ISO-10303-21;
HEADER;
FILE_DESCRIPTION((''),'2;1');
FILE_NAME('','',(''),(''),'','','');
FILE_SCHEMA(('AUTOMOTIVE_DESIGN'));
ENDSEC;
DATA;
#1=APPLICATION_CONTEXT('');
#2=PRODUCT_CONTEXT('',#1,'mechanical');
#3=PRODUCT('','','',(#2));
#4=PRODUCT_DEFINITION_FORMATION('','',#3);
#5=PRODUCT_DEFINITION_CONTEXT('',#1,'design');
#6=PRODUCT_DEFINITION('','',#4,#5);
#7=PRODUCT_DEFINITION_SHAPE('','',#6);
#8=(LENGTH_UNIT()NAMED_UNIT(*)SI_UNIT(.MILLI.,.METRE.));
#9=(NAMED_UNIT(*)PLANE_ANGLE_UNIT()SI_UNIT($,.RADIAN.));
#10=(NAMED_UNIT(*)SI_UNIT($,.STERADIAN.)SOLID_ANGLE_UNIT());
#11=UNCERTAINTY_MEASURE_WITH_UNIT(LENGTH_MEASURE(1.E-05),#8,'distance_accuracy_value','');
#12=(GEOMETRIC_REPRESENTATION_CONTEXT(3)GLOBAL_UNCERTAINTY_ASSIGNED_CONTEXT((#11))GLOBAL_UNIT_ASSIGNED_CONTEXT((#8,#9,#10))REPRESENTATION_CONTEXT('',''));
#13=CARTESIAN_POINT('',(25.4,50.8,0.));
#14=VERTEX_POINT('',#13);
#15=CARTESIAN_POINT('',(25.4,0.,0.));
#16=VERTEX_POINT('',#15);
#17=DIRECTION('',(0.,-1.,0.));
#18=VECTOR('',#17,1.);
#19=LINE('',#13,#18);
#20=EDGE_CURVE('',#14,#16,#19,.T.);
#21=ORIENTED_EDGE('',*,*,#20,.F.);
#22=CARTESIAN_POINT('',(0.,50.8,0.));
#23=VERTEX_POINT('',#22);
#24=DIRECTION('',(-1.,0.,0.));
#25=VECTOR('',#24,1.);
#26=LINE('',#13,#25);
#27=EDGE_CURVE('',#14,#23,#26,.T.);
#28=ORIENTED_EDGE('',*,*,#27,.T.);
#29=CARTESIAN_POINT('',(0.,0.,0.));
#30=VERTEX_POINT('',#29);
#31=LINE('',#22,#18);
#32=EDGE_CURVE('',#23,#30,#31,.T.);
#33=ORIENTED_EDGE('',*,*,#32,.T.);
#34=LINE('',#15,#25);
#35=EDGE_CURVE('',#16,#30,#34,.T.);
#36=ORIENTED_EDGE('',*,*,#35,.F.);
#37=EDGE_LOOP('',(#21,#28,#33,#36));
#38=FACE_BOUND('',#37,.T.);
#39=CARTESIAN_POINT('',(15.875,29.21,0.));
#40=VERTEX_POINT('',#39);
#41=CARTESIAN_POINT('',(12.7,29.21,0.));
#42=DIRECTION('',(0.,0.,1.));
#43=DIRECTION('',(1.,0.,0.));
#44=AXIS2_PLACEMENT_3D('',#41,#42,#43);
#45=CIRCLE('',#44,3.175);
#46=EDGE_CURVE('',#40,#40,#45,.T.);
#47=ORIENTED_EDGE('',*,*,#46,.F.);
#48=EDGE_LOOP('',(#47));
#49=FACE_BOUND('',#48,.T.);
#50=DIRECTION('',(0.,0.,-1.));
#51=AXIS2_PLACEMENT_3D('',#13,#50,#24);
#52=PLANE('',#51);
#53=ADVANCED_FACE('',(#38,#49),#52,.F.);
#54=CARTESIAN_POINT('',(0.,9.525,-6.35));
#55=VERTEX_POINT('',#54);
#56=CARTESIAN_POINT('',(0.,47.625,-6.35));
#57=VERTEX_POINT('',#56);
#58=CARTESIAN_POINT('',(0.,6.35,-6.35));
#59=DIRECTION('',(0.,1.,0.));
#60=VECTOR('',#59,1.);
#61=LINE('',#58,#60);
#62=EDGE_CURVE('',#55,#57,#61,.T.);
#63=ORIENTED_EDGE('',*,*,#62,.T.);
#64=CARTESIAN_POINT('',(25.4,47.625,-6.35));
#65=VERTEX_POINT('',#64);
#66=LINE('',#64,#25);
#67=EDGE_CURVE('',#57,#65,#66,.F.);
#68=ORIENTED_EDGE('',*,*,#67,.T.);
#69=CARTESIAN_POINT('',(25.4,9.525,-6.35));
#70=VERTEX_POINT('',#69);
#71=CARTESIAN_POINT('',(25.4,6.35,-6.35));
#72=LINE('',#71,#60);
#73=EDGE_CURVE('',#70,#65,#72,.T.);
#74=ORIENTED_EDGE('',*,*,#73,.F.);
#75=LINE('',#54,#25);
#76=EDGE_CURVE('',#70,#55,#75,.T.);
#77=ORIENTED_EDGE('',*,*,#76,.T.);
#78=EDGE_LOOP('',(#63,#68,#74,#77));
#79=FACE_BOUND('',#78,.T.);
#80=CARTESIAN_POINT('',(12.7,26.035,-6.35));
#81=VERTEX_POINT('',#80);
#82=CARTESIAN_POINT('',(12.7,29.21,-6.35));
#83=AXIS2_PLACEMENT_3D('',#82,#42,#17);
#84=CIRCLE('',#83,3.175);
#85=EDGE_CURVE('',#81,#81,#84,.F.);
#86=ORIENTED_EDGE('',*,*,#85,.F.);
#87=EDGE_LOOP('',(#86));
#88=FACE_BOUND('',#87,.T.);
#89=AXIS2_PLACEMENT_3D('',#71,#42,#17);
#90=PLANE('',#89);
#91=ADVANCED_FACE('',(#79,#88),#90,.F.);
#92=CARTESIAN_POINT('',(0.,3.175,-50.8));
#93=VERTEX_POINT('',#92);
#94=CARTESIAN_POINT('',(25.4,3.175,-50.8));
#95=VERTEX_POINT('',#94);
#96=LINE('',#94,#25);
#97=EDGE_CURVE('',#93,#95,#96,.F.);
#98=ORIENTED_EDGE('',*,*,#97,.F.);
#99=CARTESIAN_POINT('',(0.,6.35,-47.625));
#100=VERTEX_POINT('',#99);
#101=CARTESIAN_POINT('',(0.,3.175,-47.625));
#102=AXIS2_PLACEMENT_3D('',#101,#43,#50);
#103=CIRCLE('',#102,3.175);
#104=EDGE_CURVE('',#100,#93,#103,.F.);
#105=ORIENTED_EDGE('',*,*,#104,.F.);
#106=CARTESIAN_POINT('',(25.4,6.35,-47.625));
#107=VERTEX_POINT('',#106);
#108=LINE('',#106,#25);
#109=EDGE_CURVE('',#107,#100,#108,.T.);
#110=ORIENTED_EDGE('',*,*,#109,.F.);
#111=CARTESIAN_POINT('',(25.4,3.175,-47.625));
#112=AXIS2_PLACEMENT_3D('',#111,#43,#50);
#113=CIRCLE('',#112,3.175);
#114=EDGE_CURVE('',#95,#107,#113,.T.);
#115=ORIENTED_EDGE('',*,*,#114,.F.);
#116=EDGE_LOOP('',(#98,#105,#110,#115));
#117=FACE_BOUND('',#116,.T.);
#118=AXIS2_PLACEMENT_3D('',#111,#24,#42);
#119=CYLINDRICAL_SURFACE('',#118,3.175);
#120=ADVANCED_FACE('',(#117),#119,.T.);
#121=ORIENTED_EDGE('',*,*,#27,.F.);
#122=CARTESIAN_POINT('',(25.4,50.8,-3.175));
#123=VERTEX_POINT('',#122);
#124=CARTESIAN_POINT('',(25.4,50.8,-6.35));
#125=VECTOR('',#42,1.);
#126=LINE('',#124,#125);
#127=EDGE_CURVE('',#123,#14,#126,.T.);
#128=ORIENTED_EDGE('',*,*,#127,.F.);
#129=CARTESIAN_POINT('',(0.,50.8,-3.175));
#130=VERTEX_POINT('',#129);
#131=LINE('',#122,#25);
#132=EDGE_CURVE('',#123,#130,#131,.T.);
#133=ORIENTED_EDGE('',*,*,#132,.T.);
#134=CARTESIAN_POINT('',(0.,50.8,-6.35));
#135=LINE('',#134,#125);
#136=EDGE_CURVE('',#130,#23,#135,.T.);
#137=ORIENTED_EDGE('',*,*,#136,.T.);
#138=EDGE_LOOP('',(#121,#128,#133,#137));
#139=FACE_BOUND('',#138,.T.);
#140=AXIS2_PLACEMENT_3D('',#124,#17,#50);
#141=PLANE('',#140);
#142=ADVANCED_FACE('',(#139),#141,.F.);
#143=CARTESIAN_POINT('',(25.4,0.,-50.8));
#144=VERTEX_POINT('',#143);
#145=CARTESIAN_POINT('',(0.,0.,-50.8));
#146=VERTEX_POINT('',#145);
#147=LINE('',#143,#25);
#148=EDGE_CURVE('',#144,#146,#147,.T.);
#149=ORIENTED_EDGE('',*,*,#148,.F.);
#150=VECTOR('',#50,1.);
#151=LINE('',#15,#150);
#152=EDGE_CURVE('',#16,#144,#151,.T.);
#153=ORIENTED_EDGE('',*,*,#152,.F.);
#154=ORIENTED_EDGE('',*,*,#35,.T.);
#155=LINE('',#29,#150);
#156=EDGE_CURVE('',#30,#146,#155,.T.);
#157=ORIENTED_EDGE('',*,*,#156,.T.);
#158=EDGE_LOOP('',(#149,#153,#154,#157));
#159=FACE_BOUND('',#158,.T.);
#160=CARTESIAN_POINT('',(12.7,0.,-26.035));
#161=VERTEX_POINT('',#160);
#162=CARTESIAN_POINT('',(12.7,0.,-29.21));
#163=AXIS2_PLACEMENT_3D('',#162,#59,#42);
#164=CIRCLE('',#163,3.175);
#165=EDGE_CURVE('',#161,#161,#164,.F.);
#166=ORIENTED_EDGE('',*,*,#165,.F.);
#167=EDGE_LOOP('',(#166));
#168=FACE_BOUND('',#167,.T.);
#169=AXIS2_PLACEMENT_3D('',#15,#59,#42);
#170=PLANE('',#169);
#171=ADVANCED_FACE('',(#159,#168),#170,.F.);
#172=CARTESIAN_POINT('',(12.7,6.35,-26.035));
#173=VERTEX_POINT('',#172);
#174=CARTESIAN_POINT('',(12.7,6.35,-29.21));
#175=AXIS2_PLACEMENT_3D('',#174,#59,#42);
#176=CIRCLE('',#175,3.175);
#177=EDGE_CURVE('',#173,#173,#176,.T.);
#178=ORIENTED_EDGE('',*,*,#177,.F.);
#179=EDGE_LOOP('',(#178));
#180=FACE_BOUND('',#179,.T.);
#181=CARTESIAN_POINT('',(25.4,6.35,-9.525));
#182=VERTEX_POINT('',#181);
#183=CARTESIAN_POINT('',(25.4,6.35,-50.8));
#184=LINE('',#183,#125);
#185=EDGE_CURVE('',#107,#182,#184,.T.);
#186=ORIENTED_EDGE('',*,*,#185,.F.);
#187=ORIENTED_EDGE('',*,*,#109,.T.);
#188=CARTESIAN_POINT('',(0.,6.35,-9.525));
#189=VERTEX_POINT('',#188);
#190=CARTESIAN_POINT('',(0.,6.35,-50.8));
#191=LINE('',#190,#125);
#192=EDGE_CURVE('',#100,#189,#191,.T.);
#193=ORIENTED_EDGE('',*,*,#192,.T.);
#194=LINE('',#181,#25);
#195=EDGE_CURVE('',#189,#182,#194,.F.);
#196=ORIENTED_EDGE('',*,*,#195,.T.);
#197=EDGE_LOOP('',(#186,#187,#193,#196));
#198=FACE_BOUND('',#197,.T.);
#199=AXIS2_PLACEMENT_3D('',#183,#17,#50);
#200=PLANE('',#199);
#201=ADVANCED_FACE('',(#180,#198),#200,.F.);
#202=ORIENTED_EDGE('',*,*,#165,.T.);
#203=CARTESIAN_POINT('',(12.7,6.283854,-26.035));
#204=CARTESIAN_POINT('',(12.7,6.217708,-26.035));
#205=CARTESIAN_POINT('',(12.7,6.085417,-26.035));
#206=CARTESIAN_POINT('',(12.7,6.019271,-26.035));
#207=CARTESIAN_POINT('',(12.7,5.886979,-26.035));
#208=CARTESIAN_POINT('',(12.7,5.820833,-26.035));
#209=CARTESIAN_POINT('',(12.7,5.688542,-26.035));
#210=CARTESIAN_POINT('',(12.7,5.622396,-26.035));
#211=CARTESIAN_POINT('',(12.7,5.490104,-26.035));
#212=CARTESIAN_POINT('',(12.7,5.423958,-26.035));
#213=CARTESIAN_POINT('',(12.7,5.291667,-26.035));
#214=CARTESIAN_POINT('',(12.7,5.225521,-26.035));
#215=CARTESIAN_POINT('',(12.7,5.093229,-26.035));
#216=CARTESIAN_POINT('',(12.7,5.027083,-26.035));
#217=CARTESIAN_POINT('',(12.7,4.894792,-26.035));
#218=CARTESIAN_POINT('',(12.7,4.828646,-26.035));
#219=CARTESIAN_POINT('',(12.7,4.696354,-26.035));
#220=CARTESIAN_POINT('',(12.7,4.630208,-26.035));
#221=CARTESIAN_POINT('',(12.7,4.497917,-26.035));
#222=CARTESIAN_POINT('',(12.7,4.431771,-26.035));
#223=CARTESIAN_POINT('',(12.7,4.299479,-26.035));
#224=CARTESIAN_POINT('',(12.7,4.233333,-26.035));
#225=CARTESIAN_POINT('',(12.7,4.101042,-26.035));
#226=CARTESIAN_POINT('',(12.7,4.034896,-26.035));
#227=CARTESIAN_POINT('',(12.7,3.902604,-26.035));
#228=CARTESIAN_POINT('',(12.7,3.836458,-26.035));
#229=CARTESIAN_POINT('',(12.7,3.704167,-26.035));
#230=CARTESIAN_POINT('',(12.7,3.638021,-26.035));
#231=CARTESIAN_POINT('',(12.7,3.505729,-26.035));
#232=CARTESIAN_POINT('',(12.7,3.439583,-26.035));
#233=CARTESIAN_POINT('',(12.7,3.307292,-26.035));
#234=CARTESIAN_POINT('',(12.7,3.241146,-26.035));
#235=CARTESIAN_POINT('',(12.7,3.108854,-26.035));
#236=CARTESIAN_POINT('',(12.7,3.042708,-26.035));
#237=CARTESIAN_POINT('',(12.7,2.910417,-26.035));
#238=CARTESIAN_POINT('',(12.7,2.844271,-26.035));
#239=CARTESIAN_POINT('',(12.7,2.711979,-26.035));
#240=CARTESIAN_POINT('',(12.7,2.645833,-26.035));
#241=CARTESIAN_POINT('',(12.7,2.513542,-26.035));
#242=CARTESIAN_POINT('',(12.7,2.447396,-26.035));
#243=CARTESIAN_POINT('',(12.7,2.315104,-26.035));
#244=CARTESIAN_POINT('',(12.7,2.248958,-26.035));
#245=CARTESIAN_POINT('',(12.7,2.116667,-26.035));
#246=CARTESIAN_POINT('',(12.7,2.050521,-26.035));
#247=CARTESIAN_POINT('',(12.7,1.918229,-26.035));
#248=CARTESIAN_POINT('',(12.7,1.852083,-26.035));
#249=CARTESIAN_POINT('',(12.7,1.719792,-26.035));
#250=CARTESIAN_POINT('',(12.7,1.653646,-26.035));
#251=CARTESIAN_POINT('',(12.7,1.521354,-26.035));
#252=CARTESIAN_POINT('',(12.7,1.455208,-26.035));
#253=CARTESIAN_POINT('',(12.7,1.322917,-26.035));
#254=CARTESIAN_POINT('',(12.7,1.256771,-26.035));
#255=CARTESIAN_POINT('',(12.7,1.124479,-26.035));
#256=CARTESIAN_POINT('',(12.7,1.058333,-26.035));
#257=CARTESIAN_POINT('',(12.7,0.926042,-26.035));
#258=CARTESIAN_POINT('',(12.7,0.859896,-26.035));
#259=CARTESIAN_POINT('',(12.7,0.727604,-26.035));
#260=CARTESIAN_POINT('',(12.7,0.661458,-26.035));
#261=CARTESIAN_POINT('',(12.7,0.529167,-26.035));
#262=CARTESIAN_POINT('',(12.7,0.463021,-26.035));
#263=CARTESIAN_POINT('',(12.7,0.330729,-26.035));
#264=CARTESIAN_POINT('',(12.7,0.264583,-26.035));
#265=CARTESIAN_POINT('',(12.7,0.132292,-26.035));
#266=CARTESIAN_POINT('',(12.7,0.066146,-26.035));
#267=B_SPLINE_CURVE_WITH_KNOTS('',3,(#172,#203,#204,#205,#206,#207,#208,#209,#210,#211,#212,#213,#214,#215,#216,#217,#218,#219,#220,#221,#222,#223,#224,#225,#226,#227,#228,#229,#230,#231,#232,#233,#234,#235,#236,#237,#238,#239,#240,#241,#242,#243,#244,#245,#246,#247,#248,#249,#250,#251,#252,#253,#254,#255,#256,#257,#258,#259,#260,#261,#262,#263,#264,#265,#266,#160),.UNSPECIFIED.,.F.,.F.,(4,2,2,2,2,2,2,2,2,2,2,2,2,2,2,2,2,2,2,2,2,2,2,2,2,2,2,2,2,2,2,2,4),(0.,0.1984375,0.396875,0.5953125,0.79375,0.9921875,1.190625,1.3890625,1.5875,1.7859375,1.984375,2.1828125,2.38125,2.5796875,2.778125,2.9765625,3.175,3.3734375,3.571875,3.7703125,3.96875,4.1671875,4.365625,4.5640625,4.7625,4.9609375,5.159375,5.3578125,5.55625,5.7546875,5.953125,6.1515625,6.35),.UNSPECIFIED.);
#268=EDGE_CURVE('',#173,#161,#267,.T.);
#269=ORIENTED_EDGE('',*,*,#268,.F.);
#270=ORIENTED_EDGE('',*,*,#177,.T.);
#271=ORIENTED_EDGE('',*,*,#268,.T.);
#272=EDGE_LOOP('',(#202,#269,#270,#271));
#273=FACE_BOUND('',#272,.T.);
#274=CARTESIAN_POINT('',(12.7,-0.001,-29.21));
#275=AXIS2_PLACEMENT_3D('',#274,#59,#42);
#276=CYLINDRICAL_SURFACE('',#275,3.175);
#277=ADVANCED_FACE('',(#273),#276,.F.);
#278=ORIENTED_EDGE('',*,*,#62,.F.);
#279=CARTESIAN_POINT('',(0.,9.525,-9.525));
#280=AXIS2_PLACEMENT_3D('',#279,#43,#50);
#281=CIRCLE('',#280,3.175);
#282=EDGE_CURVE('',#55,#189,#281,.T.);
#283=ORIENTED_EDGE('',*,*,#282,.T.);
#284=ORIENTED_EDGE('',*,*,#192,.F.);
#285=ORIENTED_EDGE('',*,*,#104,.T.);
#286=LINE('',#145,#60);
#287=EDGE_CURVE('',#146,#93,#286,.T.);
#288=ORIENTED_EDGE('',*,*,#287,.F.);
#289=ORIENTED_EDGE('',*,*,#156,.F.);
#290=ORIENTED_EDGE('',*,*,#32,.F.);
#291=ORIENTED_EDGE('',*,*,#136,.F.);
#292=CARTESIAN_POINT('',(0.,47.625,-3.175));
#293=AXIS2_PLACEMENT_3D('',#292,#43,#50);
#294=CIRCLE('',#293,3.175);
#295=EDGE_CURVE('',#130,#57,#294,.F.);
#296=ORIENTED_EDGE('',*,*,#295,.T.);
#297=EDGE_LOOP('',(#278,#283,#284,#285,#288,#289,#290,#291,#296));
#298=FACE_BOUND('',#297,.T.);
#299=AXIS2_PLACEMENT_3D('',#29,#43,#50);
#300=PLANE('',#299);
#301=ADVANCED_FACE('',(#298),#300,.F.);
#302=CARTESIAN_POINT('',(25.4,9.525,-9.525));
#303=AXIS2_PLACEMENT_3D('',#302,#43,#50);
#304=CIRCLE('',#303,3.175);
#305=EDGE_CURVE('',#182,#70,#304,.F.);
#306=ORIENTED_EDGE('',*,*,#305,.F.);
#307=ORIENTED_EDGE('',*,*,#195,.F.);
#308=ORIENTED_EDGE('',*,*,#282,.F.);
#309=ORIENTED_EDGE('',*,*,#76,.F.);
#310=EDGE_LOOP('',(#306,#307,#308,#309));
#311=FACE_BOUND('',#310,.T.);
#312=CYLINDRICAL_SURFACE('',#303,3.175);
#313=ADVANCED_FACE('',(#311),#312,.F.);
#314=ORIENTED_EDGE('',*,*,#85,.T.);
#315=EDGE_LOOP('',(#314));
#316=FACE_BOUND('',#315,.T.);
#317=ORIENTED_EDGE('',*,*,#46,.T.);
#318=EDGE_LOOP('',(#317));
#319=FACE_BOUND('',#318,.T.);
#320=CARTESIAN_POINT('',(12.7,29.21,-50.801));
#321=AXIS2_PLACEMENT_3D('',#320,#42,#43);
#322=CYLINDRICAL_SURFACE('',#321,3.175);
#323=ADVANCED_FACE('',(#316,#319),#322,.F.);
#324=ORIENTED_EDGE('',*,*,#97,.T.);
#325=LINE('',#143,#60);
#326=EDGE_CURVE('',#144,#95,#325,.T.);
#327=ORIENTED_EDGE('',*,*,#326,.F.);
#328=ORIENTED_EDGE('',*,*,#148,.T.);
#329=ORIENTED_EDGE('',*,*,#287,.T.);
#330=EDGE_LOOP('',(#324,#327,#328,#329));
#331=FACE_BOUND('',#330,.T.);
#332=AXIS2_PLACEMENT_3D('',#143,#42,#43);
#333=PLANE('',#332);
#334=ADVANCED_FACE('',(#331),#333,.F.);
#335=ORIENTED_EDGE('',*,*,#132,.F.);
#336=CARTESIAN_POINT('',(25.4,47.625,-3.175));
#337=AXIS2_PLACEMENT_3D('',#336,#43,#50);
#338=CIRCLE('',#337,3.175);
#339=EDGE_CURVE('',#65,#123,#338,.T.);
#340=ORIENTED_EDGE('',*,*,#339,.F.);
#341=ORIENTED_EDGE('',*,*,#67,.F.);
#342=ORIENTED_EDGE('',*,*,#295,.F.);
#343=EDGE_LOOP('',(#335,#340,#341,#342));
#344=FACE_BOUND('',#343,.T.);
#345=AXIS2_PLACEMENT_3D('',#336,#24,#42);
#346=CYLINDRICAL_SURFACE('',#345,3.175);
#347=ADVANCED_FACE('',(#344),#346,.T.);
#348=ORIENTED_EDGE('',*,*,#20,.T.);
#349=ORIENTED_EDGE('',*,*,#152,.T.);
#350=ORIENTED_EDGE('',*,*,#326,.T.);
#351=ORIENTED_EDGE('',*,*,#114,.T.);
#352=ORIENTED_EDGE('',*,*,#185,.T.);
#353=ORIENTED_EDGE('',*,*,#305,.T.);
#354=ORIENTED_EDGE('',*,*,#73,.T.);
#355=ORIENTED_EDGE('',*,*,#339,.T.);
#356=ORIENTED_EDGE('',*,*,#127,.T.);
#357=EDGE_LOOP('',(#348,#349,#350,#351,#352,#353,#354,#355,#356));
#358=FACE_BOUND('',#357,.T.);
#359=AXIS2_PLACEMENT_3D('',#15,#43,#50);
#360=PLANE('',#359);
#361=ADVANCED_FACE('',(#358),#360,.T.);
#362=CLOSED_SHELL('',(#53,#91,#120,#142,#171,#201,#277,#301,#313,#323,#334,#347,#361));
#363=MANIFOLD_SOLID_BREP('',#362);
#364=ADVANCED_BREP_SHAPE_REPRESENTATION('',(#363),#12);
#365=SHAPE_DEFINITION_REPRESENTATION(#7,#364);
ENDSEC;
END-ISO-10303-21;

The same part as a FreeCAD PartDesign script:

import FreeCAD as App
import Part
import Sketcher

V = App.Vector
Q = App.Units.Quantity


def edges_at(feature, points):
    """Names of the edges that pass closest to the given points."""
    edges = feature.Shape.Edges
    near = lambda p: min(range(len(edges)), key=lambda i: edges[i].distToShape(Part.Vertex(*p))[0])
    return sorted({f"Edge{near(p) + 1}" for p in points})


def add_polygon(sketch, points):
    """Adds a closed chain of lines whose ends are joined by coincident constraints."""
    first, n = sketch.GeometryCount, len(points)
    for a, b in zip(points, points[1:] + points[:1]):
        sketch.addGeometry(Part.LineSegment(App.Vector(*a, 0), App.Vector(*b, 0)), False)
    for i in range(n):
        sketch.addConstraint(Sketcher.Constraint("Coincident", first + i, 2, first + (i + 1) % n, 1))

doc = App.newDocument("Part")
body = doc.addObject("PartDesign::Body", "Body")

sketch1 = doc.addObject("Sketcher::SketchObject", "Sketch")
body.addObject(sketch1)
sketch1.AttachmentSupport = (doc.YZ_Plane, [""])
sketch1.MapMode = "FlatFace"
add_polygon(sketch1, [(0, 0), (0, -51), (6, -51), (6, -6), (51, -6), (51, 0)])
sketch1.addConstraint([
    Sketcher.Constraint("Vertical", 0),
    Sketcher.Constraint("Horizontal", 1),
    Sketcher.Constraint("Vertical", 2),
    Sketcher.Constraint("Horizontal", 3),
    Sketcher.Constraint("Vertical", 4),
    Sketcher.Constraint("Horizontal", 5),
    Sketcher.Constraint("Coincident", 5, 2, -1, 1),
    Sketcher.Constraint("Equal", 5, 0),
    Sketcher.Constraint("Equal", 3, 2),
    Sketcher.Constraint("DistanceX", 5, 2, 5, 1, Q("2 in")),
    Sketcher.Constraint("DistanceX", 1, 1, 1, 2, Q("0.25 in")),
])
pad1 = doc.addObject("PartDesign::Pad", "Pad")
body.addObject(pad1)
pad1.Profile = sketch1
pad1.Length = Q("1 in")

sketch2 = doc.addObject("Sketcher::SketchObject", "Sketch001")
body.addObject(sketch2)
sketch2.AttachmentSupport = (doc.XY_Plane, [""])
sketch2.MapMode = "FlatFace"
sketch2.addGeometry(Part.Circle(V(12.7, 29.2, 0), V(0, 0, 1), 3.2), False)
sketch2.addConstraint([
    Sketcher.Constraint("Diameter", 0, Q("0.25 in")),
    Sketcher.Constraint("DistanceX", -1, 1, 0, 3, Q("0.5 in")),
    Sketcher.Constraint("DistanceY", -1, 1, 0, 3, Q("1.15 in")),
])
pocket1 = doc.addObject("PartDesign::Pocket", "Pocket")
body.addObject(pocket1)
pocket1.Profile = sketch2
pocket1.Type = "UpToFirst"

sketch3 = doc.addObject("Sketcher::SketchObject", "Sketch002")
body.addObject(sketch3)
sketch3.AttachmentSupport = (doc.XZ_Plane, [""])
sketch3.MapMode = "FlatFace"
sketch3.AttachmentOffset = App.Placement(V(0, 0, -0.25 * 25.4), App.Rotation())
sketch3.addGeometry(Part.Circle(V(12.7, -29.2, 0), V(0, 0, 1), 3.2), False)
sketch3.addConstraint([
    Sketcher.Constraint("Diameter", 0, Q("0.25 in")),
    Sketcher.Constraint("DistanceX", -1, 1, 0, 3, Q("0.5 in")),
    Sketcher.Constraint("DistanceY", 0, 3, -1, 1, Q("1.15 in")),
])
pocket2 = doc.addObject("PartDesign::Pocket", "Pocket001")
body.addObject(pocket2)
pocket2.Profile = sketch3
pocket2.Type = "UpToFirst"
pocket2.Reversed = True
doc.recompute()

fillet = doc.addObject("PartDesign::Fillet", "Fillet")
body.addObject(fillet)
fillet.Base = (pocket2, edges_at(pocket2, [(12.7, 6.35, -6.35)]))
fillet.Radius = Q("0.125 in")
doc.recompute()

fillet2 = doc.addObject("PartDesign::Fillet", "Fillet001")
body.addObject(fillet2)
fillet2.Base = (fillet, edges_at(fillet, [(12.7, 50.8, -6.35), (12.7, 6.35, -50.8)]))
fillet2.Radius = Q("0.125 in")

doc.recompute()
